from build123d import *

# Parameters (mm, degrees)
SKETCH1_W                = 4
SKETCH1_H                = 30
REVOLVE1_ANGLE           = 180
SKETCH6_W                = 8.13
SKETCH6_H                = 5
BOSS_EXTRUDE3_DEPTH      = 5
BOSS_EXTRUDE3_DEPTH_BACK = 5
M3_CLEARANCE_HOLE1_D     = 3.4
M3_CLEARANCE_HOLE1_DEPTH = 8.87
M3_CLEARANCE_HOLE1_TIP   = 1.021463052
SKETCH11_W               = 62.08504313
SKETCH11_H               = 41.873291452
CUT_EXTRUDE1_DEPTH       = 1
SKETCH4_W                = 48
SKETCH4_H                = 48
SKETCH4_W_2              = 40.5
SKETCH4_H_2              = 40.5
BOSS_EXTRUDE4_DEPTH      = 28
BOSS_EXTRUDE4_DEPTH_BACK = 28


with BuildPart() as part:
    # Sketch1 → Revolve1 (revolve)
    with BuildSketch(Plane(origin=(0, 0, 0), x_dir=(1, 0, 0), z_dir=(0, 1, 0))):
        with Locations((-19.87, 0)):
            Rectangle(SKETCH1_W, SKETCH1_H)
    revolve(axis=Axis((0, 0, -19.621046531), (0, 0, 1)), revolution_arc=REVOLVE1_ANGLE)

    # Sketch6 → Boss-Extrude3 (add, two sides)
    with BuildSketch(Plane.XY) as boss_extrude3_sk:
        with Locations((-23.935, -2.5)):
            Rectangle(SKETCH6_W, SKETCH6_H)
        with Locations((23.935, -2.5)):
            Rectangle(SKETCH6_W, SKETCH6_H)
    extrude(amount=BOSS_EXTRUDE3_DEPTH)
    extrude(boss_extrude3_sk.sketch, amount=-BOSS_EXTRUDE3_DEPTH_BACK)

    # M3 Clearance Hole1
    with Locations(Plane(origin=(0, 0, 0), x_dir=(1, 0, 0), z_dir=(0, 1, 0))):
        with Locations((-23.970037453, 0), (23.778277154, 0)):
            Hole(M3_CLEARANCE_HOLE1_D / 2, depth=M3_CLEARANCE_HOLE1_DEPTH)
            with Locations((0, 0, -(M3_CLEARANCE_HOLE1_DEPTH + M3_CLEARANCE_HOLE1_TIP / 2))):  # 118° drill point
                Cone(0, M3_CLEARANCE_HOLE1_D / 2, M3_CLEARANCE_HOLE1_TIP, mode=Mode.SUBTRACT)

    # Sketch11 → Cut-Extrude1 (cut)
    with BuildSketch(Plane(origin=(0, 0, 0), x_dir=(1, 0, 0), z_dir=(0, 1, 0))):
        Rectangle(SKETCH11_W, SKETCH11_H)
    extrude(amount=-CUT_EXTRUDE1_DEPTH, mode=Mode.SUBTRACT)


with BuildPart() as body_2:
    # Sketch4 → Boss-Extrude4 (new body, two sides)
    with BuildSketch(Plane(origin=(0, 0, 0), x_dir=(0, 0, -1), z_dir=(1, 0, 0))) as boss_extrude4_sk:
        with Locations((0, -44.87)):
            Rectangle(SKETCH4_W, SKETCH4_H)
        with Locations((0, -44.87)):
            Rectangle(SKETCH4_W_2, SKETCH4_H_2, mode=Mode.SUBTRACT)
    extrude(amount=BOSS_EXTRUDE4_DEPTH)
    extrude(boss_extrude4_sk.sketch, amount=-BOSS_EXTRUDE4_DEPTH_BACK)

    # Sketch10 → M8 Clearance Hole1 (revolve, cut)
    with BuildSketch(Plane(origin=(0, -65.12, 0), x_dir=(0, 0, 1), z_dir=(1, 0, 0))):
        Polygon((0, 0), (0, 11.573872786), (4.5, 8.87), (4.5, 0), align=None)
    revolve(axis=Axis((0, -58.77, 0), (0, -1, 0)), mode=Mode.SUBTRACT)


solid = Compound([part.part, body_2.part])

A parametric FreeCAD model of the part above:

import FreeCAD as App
import Part
import Sketcher
Q = App.Units.Quantity

doc = App.newDocument("Part")
body = doc.addObject("PartDesign::Body", "Body")

# Sketch on XZ plane
sketch1 = body.newObject("Sketcher::SketchObject", "Sketch")
sketch1.AttachmentSupport = (doc.getObject("XZ_Plane"), [""])
sketch1.MapMode = "FlatFace"
sketch1.addGeometry(Part.LineSegment(App.Vector(-21.9, -15, 0), App.Vector(-21.9, 15, 0)), False)
sketch1.addGeometry(Part.LineSegment(App.Vector(-21.9, 15, 0), App.Vector(-17.9, 15, 0)), False)
sketch1.addGeometry(Part.LineSegment(App.Vector(-17.9, 15, 0), App.Vector(-17.9, -15, 0)), False)
sketch1.addGeometry(Part.LineSegment(App.Vector(-17.9, -15, 0), App.Vector(-21.9, -15, 0)), False)
sketch1.addConstraint(Sketcher.Constraint("Coincident", 0, 2, 1, 1))
sketch1.addConstraint(Sketcher.Constraint("Coincident", 1, 2, 2, 1))
sketch1.addConstraint(Sketcher.Constraint("Coincident", 2, 2, 3, 1))
sketch1.addConstraint(Sketcher.Constraint("Coincident", 3, 2, 0, 1))
sketch1.addConstraint(Sketcher.Constraint("Vertical", 0))
sketch1.addConstraint(Sketcher.Constraint("Horizontal", 1))
sketch1.addConstraint(Sketcher.Constraint("Vertical", 2))
sketch1.addConstraint(Sketcher.Constraint("Horizontal", 3))
sketch1.addConstraint(Sketcher.Constraint("DistanceX", 1, 1, 1, 2, Q("4 mm")))
sketch1.addConstraint(Sketcher.Constraint("DistanceY", 0, 1, 0, 2, Q("30 mm")))
sketch1.addConstraint(Sketcher.Constraint("DistanceY", -1, 1, 0, 2, Q("15 mm")))
sketch1.addConstraint(Sketcher.Constraint("DistanceX", 0, 2, -1, 1, Q("21.87 mm")))
revolution = body.newObject("PartDesign::Revolution", "Revolution")
revolution.Profile = sketch1
revolution.ReferenceAxis = (sketch1, ["V_Axis"])
revolution.Angle = 180

# Sketch on XY plane
sketch2 = body.newObject("Sketcher::SketchObject", "Sketch001")
sketch2.AttachmentSupport = (doc.getObject("XY_Plane"), [""])
sketch2.MapMode = "FlatFace"
sketch2.addGeometry(Part.LineSegment(App.Vector(-28, 0, 0), App.Vector(-28, -5, 0)), False)
sketch2.addGeometry(Part.LineSegment(App.Vector(-28, -5, 0), App.Vector(-20, -5, 0)), False)
sketch2.addGeometry(Part.LineSegment(App.Vector(-20, -5, 0), App.Vector(-20, 0, 0)), False)
sketch2.addGeometry(Part.LineSegment(App.Vector(-20, 0, 0), App.Vector(-28, 0, 0)), False)
sketch2.addGeometry(Part.LineSegment(App.Vector(20, 0, 0), App.Vector(20, -5, 0)), False)
sketch2.addGeometry(Part.LineSegment(App.Vector(20, -5, 0), App.Vector(28, -5, 0)), False)
sketch2.addGeometry(Part.LineSegment(App.Vector(28, -5, 0), App.Vector(28, 0, 0)), False)
sketch2.addGeometry(Part.LineSegment(App.Vector(28, 0, 0), App.Vector(20, 0, 0)), False)
sketch2.addConstraint(Sketcher.Constraint("Coincident", 0, 2, 1, 1))
sketch2.addConstraint(Sketcher.Constraint("Coincident", 1, 2, 2, 1))
sketch2.addConstraint(Sketcher.Constraint("Coincident", 2, 2, 3, 1))
sketch2.addConstraint(Sketcher.Constraint("Coincident", 3, 2, 0, 1))
sketch2.addConstraint(Sketcher.Constraint("Coincident", 4, 2, 5, 1))
sketch2.addConstraint(Sketcher.Constraint("Coincident", 5, 2, 6, 1))
sketch2.addConstraint(Sketcher.Constraint("Coincident", 6, 2, 7, 1))
sketch2.addConstraint(Sketcher.Constraint("Coincident", 7, 2, 4, 1))
sketch2.addConstraint(Sketcher.Constraint("Vertical", 0))
sketch2.addConstraint(Sketcher.Constraint("Horizontal", 1))
sketch2.addConstraint(Sketcher.Constraint("Vertical", 2))
sketch2.addConstraint(Sketcher.Constraint("Horizontal", 3))
sketch2.addConstraint(Sketcher.Constraint("Vertical", 4))
sketch2.addConstraint(Sketcher.Constraint("Horizontal", 5))
sketch2.addConstraint(Sketcher.Constraint("Vertical", 6))
sketch2.addConstraint(Sketcher.Constraint("Horizontal", 7))
sketch2.addConstraint(Sketcher.Constraint("Symmetric", 3, 2, 6, 2, -1, 1))
sketch2.addConstraint(Sketcher.Constraint("Symmetric", 1, 2, 4, 2, -2))
sketch2.addConstraint(Sketcher.Constraint("PointOnObject", 2, 2, -1))
sketch2.addConstraint(Sketcher.Constraint("DistanceY", 0, 2, 0, 1, Q("5 mm")))
sketch2.addConstraint(Sketcher.Constraint("DistanceX", 0, 2, -1, 1, Q("28 mm")))
sketch2.addConstraint(Sketcher.Constraint("DistanceX", 1, 1, 1, 2, Q("8.13 mm")))
pad1 = body.newObject("PartDesign::Pad", "Pad")
pad1.Profile = sketch2
pad1.Type = "TwoLengths"
pad1.Length = 5
pad1.Length2 = 5

# Sketch on XZ plane
sketch3 = body.newObject("Sketcher::SketchObject", "Sketch002")
sketch3.AttachmentSupport = (doc.getObject("XZ_Plane"), [""])
sketch3.MapMode = "FlatFace"
sketch3.addGeometry(Part.Circle(App.Vector(-24, 0, 0), App.Vector(0, 0, 1), 1.7), False)
sketch3.addGeometry(Part.Circle(App.Vector(23.8, 0, 0), App.Vector(0, 0, 1), 1.7), False)
sketch3.addConstraint(Sketcher.Constraint("Equal", 0, 1))
sketch3.addConstraint(Sketcher.Constraint("PointOnObject", 0, 3, -1))
sketch3.addConstraint(Sketcher.Constraint("PointOnObject", 1, 3, -1))
sketch3.addConstraint(Sketcher.Constraint("Diameter", 0, Q("3.4 mm")))
sketch3.addConstraint(Sketcher.Constraint("DistanceX", 0, 3, -1, 1, Q("23.970037 mm")))
sketch3.addConstraint(Sketcher.Constraint("DistanceX", -1, 1, 1, 3, Q("23.778277 mm")))
doc.recompute()
hole = body.newObject("PartDesign::Hole", "Hole")
hole.Profile = sketch3
hole.ThreadType = "None"
hole.Diameter = 3.4
hole.DepthType = "Dimension"
hole.Depth = 8.87
hole.DrillPoint = "Angled"
hole.DrillPointAngle = 118
hole.Reversed = True

# Sketch on XZ plane
sketch4 = body.newObject("Sketcher::SketchObject", "Sketch003")
sketch4.AttachmentSupport = (doc.getObject("XZ_Plane"), [""])
sketch4.MapMode = "FlatFace"
sketch4.addGeometry(Part.LineSegment(App.Vector(-31, -21, 0), App.Vector(-31, 21, 0)), False)
sketch4.addGeometry(Part.LineSegment(App.Vector(-31, 21, 0), App.Vector(31, 21, 0)), False)
sketch4.addGeometry(Part.LineSegment(App.Vector(31, 21, 0), App.Vector(31, -21, 0)), False)
sketch4.addGeometry(Part.LineSegment(App.Vector(31, -21, 0), App.Vector(-31, -21, 0)), False)
sketch4.addConstraint(Sketcher.Constraint("Coincident", 0, 2, 1, 1))
sketch4.addConstraint(Sketcher.Constraint("Coincident", 1, 2, 2, 1))
sketch4.addConstraint(Sketcher.Constraint("Coincident", 2, 2, 3, 1))
sketch4.addConstraint(Sketcher.Constraint("Coincident", 3, 2, 0, 1))
sketch4.addConstraint(Sketcher.Constraint("Vertical", 0))
sketch4.addConstraint(Sketcher.Constraint("Horizontal", 1))
sketch4.addConstraint(Sketcher.Constraint("Vertical", 2))
sketch4.addConstraint(Sketcher.Constraint("Horizontal", 3))
sketch4.addConstraint(Sketcher.Constraint("Symmetric", 0, 2, 2, 2, -1, 1))
sketch4.addConstraint(Sketcher.Constraint("DistanceY", 0, 1, 0, 2, Q("41.873291 mm")))
sketch4.addConstraint(Sketcher.Constraint("DistanceX", 1, 1, 1, 2, Q("62.085043 mm")))
pocket1 = body.newObject("PartDesign::Pocket", "Pocket")
pocket1.Profile = sketch4
pocket1.Length = 1
pocket1.Reversed = True
body2 = doc.addObject("PartDesign::Body", "Body001")

# Sketch on YZ plane
sketch5 = body2.newObject("Sketcher::SketchObject", "Sketch004")
sketch5.AttachmentSupport = (doc.getObject("YZ_Plane001"), [""])
sketch5.MapMode = "FlatFace"
sketch5.addGeometry(Part.LineSegment(App.Vector(-21, 24, 0), App.Vector(-69, 24, 0)), False)
sketch5.addGeometry(Part.LineSegment(App.Vector(-69, 24, 0), App.Vector(-69, -24, 0)), False)
sketch5.addGeometry(Part.LineSegment(App.Vector(-69, -24, 0), App.Vector(-21, -24, 0)), False)
sketch5.addGeometry(Part.LineSegment(App.Vector(-21, -24, 0), App.Vector(-21, 24, 0)), False)
sketch5.addGeometry(Part.LineSegment(App.Vector(-65, -20, 0), App.Vector(-65, 20, 0)), False)
sketch5.addGeometry(Part.LineSegment(App.Vector(-65, 20, 0), App.Vector(-25, 20, 0)), False)
sketch5.addGeometry(Part.LineSegment(App.Vector(-25, 20, 0), App.Vector(-25, -20, 0)), False)
sketch5.addGeometry(Part.LineSegment(App.Vector(-25, -20, 0), App.Vector(-65, -20, 0)), False)
sketch5.addConstraint(Sketcher.Constraint("Coincident", 0, 2, 1, 1))
sketch5.addConstraint(Sketcher.Constraint("Coincident", 1, 2, 2, 1))
sketch5.addConstraint(Sketcher.Constraint("Coincident", 2, 2, 3, 1))
sketch5.addConstraint(Sketcher.Constraint("Coincident", 3, 2, 0, 1))
sketch5.addConstraint(Sketcher.Constraint("Coincident", 4, 2, 5, 1))
sketch5.addConstraint(Sketcher.Constraint("Coincident", 5, 2, 6, 1))
sketch5.addConstraint(Sketcher.Constraint("Coincident", 6, 2, 7, 1))
sketch5.addConstraint(Sketcher.Constraint("Coincident", 7, 2, 4, 1))
sketch5.addConstraint(Sketcher.Constraint("Horizontal", 0))
sketch5.addConstraint(Sketcher.Constraint("Vertical", 1))
sketch5.addConstraint(Sketcher.Constraint("Horizontal", 2))
sketch5.addConstraint(Sketcher.Constraint("Vertical", 3))
sketch5.addConstraint(Sketcher.Constraint("Vertical", 4))
sketch5.addConstraint(Sketcher.Constraint("Horizontal", 5))
sketch5.addConstraint(Sketcher.Constraint("Vertical", 6))
sketch5.addConstraint(Sketcher.Constraint("Horizontal", 7))
sketch5.addConstraint(Sketcher.Constraint("Equal", 2, 1))
sketch5.addConstraint(Sketcher.Constraint("Equal", 7, 4))
sketch5.addConstraint(Sketcher.Constraint("DistanceX", 0, 2, 0, 1, Q("48 mm")))
sketch5.addConstraint(Sketcher.Constraint("DistanceX", 5, 1, 5, 2, Q("40.5 mm")))
sketch5.addConstraint(Sketcher.Constraint("DistanceY", -1, 1, 0, 2, Q("24 mm")))
sketch5.addConstraint(Sketcher.Constraint("DistanceX", 0, 2, -1, 1, Q("68.87 mm")))
sketch5.addConstraint(Sketcher.Constraint("DistanceX", 4, 2, -1, 1, Q("65.12 mm")))
sketch5.addConstraint(Sketcher.Constraint("DistanceY", -1, 1, 4, 2, Q("20.25 mm")))
pad2 = body2.newObject("PartDesign::Pad", "Pad001")
pad2.Profile = sketch5
pad2.Type = "TwoLengths"
pad2.Length = 28
pad2.Length2 = 28

# Sketch on YZ plane
sketch6 = body2.newObject("Sketcher::SketchObject", "Sketch005")
sketch6.AttachmentSupport = (doc.getObject("YZ_Plane001"), [""])
sketch6.MapMode = "FlatFace"
sketch6.addGeometry(Part.LineSegment(App.Vector(-76.7, 0, 0), App.Vector(-65.1, 0, 0)), False)
sketch6.addGeometry(Part.LineSegment(App.Vector(-65.1, 0, 0), App.Vector(-65.1, 4.5, 0)), False)
sketch6.addGeometry(Part.LineSegment(App.Vector(-65.1, 4.5, 0), App.Vector(-74, 4.5, 0)), False)
sketch6.addGeometry(Part.LineSegment(App.Vector(-74, 4.5, 0), App.Vector(-76.7, 0, 0)), False)
sketch6.addConstraint(Sketcher.Constraint("Coincident", 0, 2, 1, 1))
sketch6.addConstraint(Sketcher.Constraint("Coincident", 1, 2, 2, 1))
sketch6.addConstraint(Sketcher.Constraint("Coincident", 2, 2, 3, 1))
sketch6.addConstraint(Sketcher.Constraint("Coincident", 3, 2, 0, 1))
sketch6.addConstraint(Sketcher.Constraint("Horizontal", 0))
sketch6.addConstraint(Sketcher.Constraint("Vertical", 1))
sketch6.addConstraint(Sketcher.Constraint("Horizontal", 2))
sketch6.addConstraint(Sketcher.Constraint("PointOnObject", 0, 2, -1))
sketch6.addConstraint(Sketcher.Constraint("Angle", 3, Q("-121 deg")))
sketch6.addConstraint(Sketcher.Constraint("DistanceY", 1, 1, 1, 2, Q("4.5 mm")))
sketch6.addConstraint(Sketcher.Constraint("DistanceX", 2, 2, 2, 1, Q("8.87 mm")))
sketch6.addConstraint(Sketcher.Constraint("DistanceX", 0, 2, -1, 1, Q("65.12 mm")))
groove = body2.newObject("PartDesign::Groove", "Groove")
groove.Profile = sketch6
groove.ReferenceAxis = (sketch6, ["H_Axis"])
groove.Angle = 360

doc.recompute()
